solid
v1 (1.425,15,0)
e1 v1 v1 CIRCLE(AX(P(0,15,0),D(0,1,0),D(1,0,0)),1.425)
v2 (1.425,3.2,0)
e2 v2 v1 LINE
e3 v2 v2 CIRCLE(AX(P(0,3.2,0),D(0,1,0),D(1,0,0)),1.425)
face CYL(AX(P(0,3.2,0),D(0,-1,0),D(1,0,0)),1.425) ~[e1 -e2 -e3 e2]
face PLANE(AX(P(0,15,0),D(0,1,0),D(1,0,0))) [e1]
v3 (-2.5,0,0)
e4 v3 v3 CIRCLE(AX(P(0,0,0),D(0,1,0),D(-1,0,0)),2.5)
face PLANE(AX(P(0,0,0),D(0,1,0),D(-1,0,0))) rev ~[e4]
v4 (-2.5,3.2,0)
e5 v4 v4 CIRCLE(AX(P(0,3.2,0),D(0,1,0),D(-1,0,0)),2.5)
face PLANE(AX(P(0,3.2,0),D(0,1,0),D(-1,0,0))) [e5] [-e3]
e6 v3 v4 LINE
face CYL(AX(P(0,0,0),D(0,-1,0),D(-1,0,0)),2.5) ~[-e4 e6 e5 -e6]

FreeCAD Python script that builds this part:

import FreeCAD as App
import Part
import Sketcher
from FreeCAD import Vector

doc = App.newDocument("Part")
body = doc.addObject("PartDesign::Body", "Body")

sketch1 = body.newObject("Sketcher::SketchObject", "Sketch")
sketch1.AttachmentSupport = (doc.getObject("XZ_Plane"), [""])
sketch1.MapMode = "FlatFace"
sketch1.addGeometry(Part.Circle(Vector(0, 0, 0), Vector(0, 0, 1), 2.5), False)
sketch1.addConstraint(Sketcher.Constraint("Coincident", 0, 3, -1, 1))
sketch1.addConstraint(Sketcher.Constraint("Diameter", 0, 5.0))
pad1 = body.newObject("PartDesign::Pad", "Pad")
pad1.Profile = sketch1
pad1.Length = 3.2
pad1.Reversed = True

sketch2 = body.newObject("Sketcher::SketchObject", "Sketch001")
sketch2.AttachmentSupport = (doc.getObject("XZ_Plane"), [""])
sketch2.MapMode = "FlatFace"
sketch2.AttachmentOffset = App.Placement(Vector(0, 0, -3.2), App.Rotation())
sketch2.addGeometry(Part.Circle(Vector(0, 0, 0), Vector(0, 0, 1), 1.4), False)
sketch2.addConstraint(Sketcher.Constraint("Coincident", 0, 3, -1, 1))
sketch2.addConstraint(Sketcher.Constraint("Diameter", 0, 2.85))
pad2 = body.newObject("PartDesign::Pad", "Pad001")
pad2.Profile = sketch2
pad2.Length = 11.8
pad2.Reversed = True

doc.recompute()
